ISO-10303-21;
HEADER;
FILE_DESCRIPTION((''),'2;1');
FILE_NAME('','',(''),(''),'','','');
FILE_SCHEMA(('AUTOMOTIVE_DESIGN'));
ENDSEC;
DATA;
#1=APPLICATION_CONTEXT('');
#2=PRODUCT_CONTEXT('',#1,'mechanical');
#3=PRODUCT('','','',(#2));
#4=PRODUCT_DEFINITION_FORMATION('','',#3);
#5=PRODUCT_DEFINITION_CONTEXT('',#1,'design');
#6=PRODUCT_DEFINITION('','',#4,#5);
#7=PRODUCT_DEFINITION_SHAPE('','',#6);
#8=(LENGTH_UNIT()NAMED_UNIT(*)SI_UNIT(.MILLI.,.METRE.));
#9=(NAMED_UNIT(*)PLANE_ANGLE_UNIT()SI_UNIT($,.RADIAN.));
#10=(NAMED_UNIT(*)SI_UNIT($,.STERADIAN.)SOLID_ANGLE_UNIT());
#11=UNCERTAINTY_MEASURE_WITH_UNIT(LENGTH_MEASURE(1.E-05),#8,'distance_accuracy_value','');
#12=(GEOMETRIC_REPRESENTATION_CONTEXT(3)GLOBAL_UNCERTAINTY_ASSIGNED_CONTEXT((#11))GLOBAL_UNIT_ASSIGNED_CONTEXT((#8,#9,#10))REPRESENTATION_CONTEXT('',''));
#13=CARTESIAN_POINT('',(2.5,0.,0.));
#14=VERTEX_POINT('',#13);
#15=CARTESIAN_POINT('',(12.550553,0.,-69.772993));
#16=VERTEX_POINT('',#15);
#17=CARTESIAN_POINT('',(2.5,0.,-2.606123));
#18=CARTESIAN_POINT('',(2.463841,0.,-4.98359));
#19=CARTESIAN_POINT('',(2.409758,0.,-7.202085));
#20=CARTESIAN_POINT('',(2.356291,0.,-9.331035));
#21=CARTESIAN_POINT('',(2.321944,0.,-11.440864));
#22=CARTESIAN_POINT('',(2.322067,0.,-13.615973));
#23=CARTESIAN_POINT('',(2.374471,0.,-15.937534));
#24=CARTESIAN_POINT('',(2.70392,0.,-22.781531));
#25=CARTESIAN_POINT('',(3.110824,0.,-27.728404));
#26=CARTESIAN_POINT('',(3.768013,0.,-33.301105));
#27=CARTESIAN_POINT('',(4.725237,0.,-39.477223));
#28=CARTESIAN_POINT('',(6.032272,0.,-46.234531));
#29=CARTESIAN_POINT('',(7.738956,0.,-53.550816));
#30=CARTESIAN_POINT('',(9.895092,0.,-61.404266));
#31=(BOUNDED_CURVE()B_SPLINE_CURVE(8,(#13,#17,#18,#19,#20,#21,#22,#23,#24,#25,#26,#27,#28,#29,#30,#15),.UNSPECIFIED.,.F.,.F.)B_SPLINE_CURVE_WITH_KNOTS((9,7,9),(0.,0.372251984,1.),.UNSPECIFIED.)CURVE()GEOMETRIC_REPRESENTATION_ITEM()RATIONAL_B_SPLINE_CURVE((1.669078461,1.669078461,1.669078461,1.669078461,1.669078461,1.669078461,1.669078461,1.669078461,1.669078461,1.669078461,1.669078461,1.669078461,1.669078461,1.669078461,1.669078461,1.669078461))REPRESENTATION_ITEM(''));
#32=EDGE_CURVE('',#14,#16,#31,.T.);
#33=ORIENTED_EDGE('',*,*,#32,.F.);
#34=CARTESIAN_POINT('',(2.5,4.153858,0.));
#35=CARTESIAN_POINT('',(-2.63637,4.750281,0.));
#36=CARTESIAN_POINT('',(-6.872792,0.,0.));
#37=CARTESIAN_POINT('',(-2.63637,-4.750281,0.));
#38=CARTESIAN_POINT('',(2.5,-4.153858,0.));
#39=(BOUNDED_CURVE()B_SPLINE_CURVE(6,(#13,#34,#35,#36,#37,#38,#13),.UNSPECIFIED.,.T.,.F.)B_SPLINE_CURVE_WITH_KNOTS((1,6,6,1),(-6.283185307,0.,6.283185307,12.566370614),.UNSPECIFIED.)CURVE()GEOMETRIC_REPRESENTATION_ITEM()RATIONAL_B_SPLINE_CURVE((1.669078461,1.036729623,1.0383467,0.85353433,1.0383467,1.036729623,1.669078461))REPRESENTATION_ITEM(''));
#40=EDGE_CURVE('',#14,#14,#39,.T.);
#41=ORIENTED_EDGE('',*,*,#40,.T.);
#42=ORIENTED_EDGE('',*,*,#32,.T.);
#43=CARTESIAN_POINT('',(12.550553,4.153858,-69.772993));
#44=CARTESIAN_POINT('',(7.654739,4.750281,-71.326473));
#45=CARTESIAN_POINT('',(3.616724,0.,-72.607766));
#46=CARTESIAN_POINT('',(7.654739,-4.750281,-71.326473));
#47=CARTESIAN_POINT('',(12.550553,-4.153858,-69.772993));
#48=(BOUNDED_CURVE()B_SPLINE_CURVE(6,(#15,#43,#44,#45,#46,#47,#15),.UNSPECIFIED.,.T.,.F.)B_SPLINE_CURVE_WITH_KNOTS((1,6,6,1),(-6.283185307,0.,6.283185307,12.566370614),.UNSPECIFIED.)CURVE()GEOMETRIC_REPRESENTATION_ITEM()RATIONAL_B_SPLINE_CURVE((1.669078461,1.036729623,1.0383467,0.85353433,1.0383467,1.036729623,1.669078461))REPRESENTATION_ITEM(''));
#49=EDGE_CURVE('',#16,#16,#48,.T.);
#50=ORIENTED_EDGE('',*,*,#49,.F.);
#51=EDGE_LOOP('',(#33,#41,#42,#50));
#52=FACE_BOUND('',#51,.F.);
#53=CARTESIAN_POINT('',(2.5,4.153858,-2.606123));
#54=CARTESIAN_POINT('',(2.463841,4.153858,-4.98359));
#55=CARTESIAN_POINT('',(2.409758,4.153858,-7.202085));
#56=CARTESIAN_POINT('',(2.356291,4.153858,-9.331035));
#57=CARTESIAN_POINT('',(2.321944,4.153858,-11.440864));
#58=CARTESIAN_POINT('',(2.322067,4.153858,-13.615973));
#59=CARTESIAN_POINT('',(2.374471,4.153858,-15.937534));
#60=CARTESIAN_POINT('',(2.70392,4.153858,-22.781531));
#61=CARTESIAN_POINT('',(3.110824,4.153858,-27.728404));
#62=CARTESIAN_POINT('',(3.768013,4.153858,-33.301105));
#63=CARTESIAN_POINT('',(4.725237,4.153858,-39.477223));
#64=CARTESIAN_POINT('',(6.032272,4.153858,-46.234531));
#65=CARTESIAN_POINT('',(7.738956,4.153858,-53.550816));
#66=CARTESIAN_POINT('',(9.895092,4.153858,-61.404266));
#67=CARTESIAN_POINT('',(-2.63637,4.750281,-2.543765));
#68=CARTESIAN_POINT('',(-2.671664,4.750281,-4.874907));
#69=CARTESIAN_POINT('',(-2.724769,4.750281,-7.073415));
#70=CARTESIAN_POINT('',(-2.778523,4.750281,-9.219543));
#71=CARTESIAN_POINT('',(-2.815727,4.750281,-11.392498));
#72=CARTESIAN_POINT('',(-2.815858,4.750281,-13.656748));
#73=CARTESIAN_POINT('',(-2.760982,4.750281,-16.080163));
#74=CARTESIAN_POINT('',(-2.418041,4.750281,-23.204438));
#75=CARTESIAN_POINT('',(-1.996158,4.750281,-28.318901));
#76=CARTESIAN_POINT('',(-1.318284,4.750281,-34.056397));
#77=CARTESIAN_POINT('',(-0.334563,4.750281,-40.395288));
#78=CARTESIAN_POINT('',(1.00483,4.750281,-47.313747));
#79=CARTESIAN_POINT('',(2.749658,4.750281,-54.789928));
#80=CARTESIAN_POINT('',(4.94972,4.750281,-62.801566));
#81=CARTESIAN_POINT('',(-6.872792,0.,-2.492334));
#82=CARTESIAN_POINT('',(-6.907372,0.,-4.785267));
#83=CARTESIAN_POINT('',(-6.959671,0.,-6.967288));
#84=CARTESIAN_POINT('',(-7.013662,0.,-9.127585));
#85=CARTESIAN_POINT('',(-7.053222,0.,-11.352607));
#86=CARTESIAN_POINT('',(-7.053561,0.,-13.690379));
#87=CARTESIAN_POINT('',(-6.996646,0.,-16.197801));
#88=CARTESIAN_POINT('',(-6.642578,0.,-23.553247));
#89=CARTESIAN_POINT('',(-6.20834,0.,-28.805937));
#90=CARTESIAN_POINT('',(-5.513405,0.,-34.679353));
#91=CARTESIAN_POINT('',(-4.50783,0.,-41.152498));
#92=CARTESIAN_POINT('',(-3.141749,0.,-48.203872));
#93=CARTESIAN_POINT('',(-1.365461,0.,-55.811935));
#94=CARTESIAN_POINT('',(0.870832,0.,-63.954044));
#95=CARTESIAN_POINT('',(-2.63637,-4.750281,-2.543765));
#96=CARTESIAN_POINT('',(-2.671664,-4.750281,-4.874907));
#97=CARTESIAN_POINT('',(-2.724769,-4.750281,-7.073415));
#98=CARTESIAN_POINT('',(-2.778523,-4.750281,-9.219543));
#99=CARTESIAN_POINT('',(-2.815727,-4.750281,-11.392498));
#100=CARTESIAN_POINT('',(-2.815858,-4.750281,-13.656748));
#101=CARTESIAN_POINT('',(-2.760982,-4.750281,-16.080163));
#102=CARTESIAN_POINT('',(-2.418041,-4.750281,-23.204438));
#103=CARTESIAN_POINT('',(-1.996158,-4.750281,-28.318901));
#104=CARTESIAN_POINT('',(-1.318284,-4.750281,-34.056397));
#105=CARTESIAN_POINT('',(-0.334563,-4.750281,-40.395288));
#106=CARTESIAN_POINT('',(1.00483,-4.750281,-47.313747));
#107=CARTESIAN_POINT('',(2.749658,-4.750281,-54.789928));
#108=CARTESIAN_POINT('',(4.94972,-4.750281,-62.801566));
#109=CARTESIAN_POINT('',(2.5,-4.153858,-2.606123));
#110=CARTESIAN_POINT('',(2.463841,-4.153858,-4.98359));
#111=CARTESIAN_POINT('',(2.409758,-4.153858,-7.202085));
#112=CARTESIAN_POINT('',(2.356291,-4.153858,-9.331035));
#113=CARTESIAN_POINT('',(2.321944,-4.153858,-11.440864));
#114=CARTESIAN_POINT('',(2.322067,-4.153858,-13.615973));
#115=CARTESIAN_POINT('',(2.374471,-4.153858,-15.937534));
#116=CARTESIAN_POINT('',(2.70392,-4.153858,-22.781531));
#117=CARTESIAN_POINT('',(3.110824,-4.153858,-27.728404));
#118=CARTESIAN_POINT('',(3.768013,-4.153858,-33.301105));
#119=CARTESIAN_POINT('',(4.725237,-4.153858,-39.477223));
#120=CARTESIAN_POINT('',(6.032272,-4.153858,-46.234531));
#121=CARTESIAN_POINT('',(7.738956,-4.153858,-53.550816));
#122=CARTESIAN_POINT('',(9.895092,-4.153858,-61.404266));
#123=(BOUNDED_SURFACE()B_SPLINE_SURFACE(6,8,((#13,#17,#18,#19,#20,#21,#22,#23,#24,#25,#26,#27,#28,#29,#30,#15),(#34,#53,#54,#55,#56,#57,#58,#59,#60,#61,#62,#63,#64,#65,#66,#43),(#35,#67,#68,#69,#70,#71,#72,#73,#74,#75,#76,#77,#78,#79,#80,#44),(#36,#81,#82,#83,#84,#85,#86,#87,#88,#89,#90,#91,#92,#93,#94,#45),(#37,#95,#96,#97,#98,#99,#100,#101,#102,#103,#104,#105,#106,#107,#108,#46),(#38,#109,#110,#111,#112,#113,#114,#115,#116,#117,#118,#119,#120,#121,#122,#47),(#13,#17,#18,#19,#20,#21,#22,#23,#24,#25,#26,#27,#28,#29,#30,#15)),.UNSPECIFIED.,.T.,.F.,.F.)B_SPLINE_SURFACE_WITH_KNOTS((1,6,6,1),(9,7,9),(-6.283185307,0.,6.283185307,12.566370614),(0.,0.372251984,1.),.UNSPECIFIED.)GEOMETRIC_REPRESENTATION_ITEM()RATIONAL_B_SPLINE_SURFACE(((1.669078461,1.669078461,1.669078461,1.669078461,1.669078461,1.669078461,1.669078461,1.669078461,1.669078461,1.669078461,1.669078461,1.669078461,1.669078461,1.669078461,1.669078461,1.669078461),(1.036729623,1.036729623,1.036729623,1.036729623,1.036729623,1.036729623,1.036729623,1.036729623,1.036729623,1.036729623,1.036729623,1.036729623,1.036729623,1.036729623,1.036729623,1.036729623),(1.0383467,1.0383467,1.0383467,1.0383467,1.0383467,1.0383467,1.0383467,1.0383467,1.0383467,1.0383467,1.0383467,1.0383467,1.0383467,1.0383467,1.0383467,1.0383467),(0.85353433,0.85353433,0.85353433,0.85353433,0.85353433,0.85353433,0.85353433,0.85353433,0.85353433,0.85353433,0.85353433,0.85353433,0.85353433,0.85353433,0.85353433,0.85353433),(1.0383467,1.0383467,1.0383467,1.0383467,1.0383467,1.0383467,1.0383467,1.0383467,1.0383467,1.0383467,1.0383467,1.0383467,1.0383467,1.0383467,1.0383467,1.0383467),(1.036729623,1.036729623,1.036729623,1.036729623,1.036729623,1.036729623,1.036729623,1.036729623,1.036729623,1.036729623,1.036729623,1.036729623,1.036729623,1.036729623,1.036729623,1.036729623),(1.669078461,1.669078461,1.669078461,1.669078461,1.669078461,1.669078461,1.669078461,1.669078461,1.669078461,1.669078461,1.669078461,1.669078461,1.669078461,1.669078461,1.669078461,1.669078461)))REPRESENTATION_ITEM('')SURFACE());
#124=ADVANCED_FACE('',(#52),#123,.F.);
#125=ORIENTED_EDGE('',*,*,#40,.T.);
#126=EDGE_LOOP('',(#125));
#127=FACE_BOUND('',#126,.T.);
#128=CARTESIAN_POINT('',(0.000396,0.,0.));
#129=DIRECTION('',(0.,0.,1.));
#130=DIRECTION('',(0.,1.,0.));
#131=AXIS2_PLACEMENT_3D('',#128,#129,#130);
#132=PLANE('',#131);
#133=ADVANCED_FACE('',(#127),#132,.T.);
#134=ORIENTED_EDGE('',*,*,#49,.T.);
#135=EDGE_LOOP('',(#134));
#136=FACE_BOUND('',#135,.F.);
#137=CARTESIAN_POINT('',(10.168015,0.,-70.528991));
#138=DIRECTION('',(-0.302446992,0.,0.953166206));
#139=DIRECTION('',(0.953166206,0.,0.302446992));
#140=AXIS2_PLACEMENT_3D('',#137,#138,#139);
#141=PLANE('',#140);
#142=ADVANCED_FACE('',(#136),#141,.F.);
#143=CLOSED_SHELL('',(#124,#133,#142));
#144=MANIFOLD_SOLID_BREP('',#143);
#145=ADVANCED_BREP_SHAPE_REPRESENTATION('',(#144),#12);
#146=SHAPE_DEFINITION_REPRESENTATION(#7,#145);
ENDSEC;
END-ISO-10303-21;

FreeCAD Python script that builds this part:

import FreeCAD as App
import Part
import Sketcher

V = App.Vector

doc = App.newDocument("Part")
body = doc.addObject("PartDesign::Body", "Body")

sketch1 = body.newObject("Sketcher::SketchObject", "Sketch")
sketch1.AttachmentSupport = (doc.getObject("XY_Plane"), [""])
sketch1.MapMode = "FlatFace"
sketch1.addGeometry(Part.Circle(V(0, 0, 0), V(0, 0, 1), 2.5), False)
sketch1.addConstraint([
    Sketcher.Constraint("Coincident", 0, 3, -1, 1),
    Sketcher.Constraint("Diameter", 0, 5.0),
])

sketch2 = body.newObject("Sketcher::SketchObject", "Sketch001")
sketch2.AttachmentSupport = (doc.getObject("XZ_Plane"), [""])
sketch2.MapMode = "FlatFace"
sketch2.addGeometry(Part.BSplineCurve([V(0, 0, 0), V(0, -6.868725, 0), V(-0.896042, -19.783204, 0), V(3.022085, -48.009794, 0), V(10.167638, -70.529111, 0)], [4, 1, 4], [0, 0.372251984, 1], False, 3, [1, 1, 1, 1, 1], False), False)
sketch2.addConstraint(Sketcher.Constraint("Block", 0))
doc.recompute()

additivepipe = body.newObject("PartDesign::AdditivePipe", "AdditivePipe")
additivepipe.Profile = sketch1
additivepipe.Spine = (sketch2, ["Edge1"])

doc.recompute()
